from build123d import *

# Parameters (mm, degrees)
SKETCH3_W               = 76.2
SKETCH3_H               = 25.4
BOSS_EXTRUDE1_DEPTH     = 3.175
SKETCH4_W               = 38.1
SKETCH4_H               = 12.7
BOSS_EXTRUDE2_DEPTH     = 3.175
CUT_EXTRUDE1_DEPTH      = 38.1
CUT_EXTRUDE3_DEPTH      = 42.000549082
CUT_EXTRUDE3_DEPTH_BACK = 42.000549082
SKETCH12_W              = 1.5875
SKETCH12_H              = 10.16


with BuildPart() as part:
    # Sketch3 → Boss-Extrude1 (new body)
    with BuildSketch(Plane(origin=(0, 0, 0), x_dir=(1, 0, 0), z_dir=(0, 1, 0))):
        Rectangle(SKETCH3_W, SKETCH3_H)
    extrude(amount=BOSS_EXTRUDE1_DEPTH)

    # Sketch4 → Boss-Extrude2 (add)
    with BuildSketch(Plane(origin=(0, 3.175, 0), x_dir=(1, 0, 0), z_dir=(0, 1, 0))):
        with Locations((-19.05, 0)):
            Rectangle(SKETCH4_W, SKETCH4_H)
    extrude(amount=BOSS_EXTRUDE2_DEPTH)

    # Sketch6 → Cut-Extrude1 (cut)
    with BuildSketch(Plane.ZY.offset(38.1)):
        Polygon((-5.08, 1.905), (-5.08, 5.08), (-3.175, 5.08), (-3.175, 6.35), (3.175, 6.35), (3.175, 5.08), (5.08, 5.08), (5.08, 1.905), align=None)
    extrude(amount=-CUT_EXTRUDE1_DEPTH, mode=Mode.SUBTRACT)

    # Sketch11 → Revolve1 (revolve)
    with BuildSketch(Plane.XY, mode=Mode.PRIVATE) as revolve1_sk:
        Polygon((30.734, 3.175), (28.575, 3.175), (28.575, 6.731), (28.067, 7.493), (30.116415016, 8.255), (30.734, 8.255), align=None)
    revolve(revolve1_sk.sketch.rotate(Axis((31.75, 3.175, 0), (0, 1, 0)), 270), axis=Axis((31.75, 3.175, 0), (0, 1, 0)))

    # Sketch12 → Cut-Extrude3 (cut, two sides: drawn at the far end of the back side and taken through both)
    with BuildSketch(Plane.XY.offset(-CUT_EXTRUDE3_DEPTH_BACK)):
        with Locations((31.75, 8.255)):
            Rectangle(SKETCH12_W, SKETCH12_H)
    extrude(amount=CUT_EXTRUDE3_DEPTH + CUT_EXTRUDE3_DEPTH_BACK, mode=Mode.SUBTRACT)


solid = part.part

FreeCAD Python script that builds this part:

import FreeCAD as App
import Part
import Sketcher
Q = App.Units.Quantity


def add_polygon(sketch, points):
    """Adds a closed chain of lines whose ends are joined by coincident constraints."""
    first, n = sketch.GeometryCount, len(points)
    for a, b in zip(points, points[1:] + points[:1]):
        sketch.addGeometry(Part.LineSegment(App.Vector(*a, 0), App.Vector(*b, 0)), False)
    for i in range(n):
        sketch.addConstraint(Sketcher.Constraint("Coincident", first + i, 2, first + (i + 1) % n, 1))

doc = App.newDocument("Part")
body = doc.addObject("PartDesign::Body", "Body")

# Sketch on XZ plane
sketch1 = doc.addObject("Sketcher::SketchObject", "Sketch")
body.addObject(sketch1)
sketch1.AttachmentSupport = (doc.XZ_Plane, [""])
sketch1.MapMode = "FlatFace"
add_polygon(sketch1, [(-38, -13), (-38, 13), (38, 13), (38, -13)])  # lines 0-3
sketch1.addConstraint([
    Sketcher.Constraint("Vertical", 0),
    Sketcher.Constraint("Horizontal", 1),
    Sketcher.Constraint("Vertical", 2),
    Sketcher.Constraint("Horizontal", 3),
    Sketcher.Constraint("Symmetric", 0, 2, 2, 2, -1, 1),
    Sketcher.Constraint("DistanceX", 1, 1, 1, 2, Q("3 in")),
    Sketcher.Constraint("DistanceY", 0, 1, 0, 2, Q("1 in")),
])
pad1 = doc.addObject("PartDesign::Pad", "Pad")
body.addObject(pad1)
pad1.Profile = sketch1
pad1.Length = Q("0.125 in")
pad1.Reversed = True

# Sketch on XZ plane
sketch2 = doc.addObject("Sketcher::SketchObject", "Sketch001")
body.addObject(sketch2)
sketch2.AttachmentSupport = (doc.XZ_Plane, [""])
sketch2.MapMode = "FlatFace"
sketch2.AttachmentOffset = App.Placement(App.Vector(0, 0, -0.125 * 25.4), App.Rotation())
add_polygon(sketch2, [(-38, -6), (-38, 6), (0, 6), (0, -6)])  # lines 0-3
sketch2.addConstraint([
    Sketcher.Constraint("Vertical", 0),
    Sketcher.Constraint("Horizontal", 1),
    Sketcher.Constraint("Vertical", 2),
    Sketcher.Constraint("Horizontal", 3),
    Sketcher.Constraint("Symmetric", 1, 2, 2, 2, -1, 1),
    Sketcher.Constraint("DistanceX", 1, 1, 1, 2, Q("1.5 in")),
    Sketcher.Constraint("DistanceY", 0, 1, 0, 2, Q("0.5 in")),
])
pad2 = doc.addObject("PartDesign::Pad", "Pad001")
body.addObject(pad2)
pad2.Profile = sketch2
pad2.Length = Q("0.125 in")
pad2.Reversed = True

# Sketch on YZ plane
sketch3 = doc.addObject("Sketcher::SketchObject", "Sketch002")
body.addObject(sketch3)
sketch3.AttachmentSupport = (doc.YZ_Plane, [""])
sketch3.MapMode = "FlatFace"
sketch3.AttachmentOffset = App.Placement(App.Vector(0, 0, -1.5 * 25.4), App.Rotation())
add_polygon(sketch3, [(5.1, -5.1), (1.9, -5.1), (1.9, 5.1), (5.1, 5.1), (5.1, 3.2), (6.3, 3.2), (6.3, -3.2), (5.1, -3.2)])  # lines 0-7
sketch3.addConstraint([
    Sketcher.Constraint("Horizontal", 0),
    Sketcher.Constraint("Vertical", 1),
    Sketcher.Constraint("Horizontal", 2),
    Sketcher.Constraint("Vertical", 3),
    Sketcher.Constraint("Horizontal", 4),
    Sketcher.Constraint("Vertical", 5),
    Sketcher.Constraint("Horizontal", 6),
    Sketcher.Constraint("Vertical", 7),
    Sketcher.Constraint("Symmetric", 3, 2, 6, 2, -1),
    Sketcher.Constraint("Equal", 3, 7),
    Sketcher.Constraint("DistanceY", 1, 1, 1, 2, Q("0.4 in")),
    Sketcher.Constraint("DistanceX", 4, 1, 4, 2, Q("0.05 in")),
    Sketcher.Constraint("DistanceY", 5, 2, 5, 1, Q("0.25 in")),
    Sketcher.Constraint("DistanceX", -1, 1, 2, 2, Q("0.2 in")),
    Sketcher.Constraint("DistanceX", 0, 2, 0, 1, Q("0.125 in")),
])
pocket1 = doc.addObject("PartDesign::Pocket", "Pocket")
body.addObject(pocket1)
pocket1.Profile = sketch3
pocket1.Length = Q("1.5 in")
pocket1.Reversed = True

# Sketch on XY plane
sketch4 = doc.addObject("Sketcher::SketchObject", "Sketch003")
body.addObject(sketch4)
sketch4.AttachmentSupport = (doc.XY_Plane, [""])
sketch4.MapMode = "FlatFace"
add_polygon(sketch4, [(28.6, 3.2), (30.7, 3.2), (30.7, 8.3), (30.1, 8.3), (28.1, 7.5), (28.6, 6.7)])  # lines 0-5
sketch4.addGeometry(Part.LineSegment(App.Vector(31.8, 3.2, 0), App.Vector(31.8, 8.3, 0)), True)  # axis
sketch4.addConstraint([
    Sketcher.Constraint("Horizontal", 0),
    Sketcher.Constraint("Vertical", 1),
    Sketcher.Constraint("Horizontal", 2),
    Sketcher.Constraint("Vertical", 5),
    Sketcher.Constraint("Vertical", 6),
    Sketcher.Constraint("Horizontal", 5, 2, 6, 1),
    Sketcher.Constraint("Horizontal", 2, 2, 6, 2),
    Sketcher.Constraint("DistanceY", 1, 1, 1, 2, Q("0.2 in")),
    Sketcher.Constraint("DistanceY", 5, 2, 5, 1, Q("0.14 in")),
    Sketcher.Constraint("DistanceX", 0, 1, 0, 2, Q("0.085 in")),
    Sketcher.Constraint("DistanceX", -1, 1, 0, 2, Q("1.21 in")),
    Sketcher.Constraint("DistanceX", -1, 1, 6, 1, Q("1.25 in")),
    Sketcher.Constraint("DistanceY", 3, 2, 2, 2, Q("0.03 in")),
    Sketcher.Constraint("DistanceX", 3, 2, 4, 2, Q("0.02 in")),
    Sketcher.Constraint("DistanceY", -1, 1, 0, 2, Q("0.125 in")),
    Sketcher.Constraint("Distance", 3, 2.186492),
])
revolution = doc.addObject("PartDesign::Revolution", "Revolution")
body.addObject(revolution)
revolution.Profile = sketch4
revolution.ReferenceAxis = (sketch4, ["Axis0"])
revolution.Angle = 360

# Sketch on XY plane
sketch5 = doc.addObject("Sketcher::SketchObject", "Sketch004")
body.addObject(sketch5)
sketch5.AttachmentSupport = (doc.XY_Plane, [""])
sketch5.MapMode = "FlatFace"
add_polygon(sketch5, [(31, 13.3), (31, 3.2), (32.5, 3.2), (32.5, 13.3)])  # lines 0-3
sketch5.addConstraint([
    Sketcher.Constraint("Vertical", 0),
    Sketcher.Constraint("Horizontal", 1),
    Sketcher.Constraint("Vertical", 2),
    Sketcher.Constraint("Horizontal", 3),
    Sketcher.Constraint("DistanceY", 0, 2, 0, 1, Q("0.4 in")),
    Sketcher.Constraint("DistanceX", 1, 1, 1, 2, Q("0.0625 in")),
    Sketcher.Constraint("DistanceX", -1, 1, 0, 2, Q("1.21875 in")),
    Sketcher.Constraint("DistanceY", -1, 1, 0, 2, Q("0.125 in")),
])
pocket2 = doc.addObject("PartDesign::Pocket", "Pocket001")
body.addObject(pocket2)
pocket2.Profile = sketch5
pocket2.Type = "ThroughAll"
pocket2.Midplane = True

doc.recompute()
